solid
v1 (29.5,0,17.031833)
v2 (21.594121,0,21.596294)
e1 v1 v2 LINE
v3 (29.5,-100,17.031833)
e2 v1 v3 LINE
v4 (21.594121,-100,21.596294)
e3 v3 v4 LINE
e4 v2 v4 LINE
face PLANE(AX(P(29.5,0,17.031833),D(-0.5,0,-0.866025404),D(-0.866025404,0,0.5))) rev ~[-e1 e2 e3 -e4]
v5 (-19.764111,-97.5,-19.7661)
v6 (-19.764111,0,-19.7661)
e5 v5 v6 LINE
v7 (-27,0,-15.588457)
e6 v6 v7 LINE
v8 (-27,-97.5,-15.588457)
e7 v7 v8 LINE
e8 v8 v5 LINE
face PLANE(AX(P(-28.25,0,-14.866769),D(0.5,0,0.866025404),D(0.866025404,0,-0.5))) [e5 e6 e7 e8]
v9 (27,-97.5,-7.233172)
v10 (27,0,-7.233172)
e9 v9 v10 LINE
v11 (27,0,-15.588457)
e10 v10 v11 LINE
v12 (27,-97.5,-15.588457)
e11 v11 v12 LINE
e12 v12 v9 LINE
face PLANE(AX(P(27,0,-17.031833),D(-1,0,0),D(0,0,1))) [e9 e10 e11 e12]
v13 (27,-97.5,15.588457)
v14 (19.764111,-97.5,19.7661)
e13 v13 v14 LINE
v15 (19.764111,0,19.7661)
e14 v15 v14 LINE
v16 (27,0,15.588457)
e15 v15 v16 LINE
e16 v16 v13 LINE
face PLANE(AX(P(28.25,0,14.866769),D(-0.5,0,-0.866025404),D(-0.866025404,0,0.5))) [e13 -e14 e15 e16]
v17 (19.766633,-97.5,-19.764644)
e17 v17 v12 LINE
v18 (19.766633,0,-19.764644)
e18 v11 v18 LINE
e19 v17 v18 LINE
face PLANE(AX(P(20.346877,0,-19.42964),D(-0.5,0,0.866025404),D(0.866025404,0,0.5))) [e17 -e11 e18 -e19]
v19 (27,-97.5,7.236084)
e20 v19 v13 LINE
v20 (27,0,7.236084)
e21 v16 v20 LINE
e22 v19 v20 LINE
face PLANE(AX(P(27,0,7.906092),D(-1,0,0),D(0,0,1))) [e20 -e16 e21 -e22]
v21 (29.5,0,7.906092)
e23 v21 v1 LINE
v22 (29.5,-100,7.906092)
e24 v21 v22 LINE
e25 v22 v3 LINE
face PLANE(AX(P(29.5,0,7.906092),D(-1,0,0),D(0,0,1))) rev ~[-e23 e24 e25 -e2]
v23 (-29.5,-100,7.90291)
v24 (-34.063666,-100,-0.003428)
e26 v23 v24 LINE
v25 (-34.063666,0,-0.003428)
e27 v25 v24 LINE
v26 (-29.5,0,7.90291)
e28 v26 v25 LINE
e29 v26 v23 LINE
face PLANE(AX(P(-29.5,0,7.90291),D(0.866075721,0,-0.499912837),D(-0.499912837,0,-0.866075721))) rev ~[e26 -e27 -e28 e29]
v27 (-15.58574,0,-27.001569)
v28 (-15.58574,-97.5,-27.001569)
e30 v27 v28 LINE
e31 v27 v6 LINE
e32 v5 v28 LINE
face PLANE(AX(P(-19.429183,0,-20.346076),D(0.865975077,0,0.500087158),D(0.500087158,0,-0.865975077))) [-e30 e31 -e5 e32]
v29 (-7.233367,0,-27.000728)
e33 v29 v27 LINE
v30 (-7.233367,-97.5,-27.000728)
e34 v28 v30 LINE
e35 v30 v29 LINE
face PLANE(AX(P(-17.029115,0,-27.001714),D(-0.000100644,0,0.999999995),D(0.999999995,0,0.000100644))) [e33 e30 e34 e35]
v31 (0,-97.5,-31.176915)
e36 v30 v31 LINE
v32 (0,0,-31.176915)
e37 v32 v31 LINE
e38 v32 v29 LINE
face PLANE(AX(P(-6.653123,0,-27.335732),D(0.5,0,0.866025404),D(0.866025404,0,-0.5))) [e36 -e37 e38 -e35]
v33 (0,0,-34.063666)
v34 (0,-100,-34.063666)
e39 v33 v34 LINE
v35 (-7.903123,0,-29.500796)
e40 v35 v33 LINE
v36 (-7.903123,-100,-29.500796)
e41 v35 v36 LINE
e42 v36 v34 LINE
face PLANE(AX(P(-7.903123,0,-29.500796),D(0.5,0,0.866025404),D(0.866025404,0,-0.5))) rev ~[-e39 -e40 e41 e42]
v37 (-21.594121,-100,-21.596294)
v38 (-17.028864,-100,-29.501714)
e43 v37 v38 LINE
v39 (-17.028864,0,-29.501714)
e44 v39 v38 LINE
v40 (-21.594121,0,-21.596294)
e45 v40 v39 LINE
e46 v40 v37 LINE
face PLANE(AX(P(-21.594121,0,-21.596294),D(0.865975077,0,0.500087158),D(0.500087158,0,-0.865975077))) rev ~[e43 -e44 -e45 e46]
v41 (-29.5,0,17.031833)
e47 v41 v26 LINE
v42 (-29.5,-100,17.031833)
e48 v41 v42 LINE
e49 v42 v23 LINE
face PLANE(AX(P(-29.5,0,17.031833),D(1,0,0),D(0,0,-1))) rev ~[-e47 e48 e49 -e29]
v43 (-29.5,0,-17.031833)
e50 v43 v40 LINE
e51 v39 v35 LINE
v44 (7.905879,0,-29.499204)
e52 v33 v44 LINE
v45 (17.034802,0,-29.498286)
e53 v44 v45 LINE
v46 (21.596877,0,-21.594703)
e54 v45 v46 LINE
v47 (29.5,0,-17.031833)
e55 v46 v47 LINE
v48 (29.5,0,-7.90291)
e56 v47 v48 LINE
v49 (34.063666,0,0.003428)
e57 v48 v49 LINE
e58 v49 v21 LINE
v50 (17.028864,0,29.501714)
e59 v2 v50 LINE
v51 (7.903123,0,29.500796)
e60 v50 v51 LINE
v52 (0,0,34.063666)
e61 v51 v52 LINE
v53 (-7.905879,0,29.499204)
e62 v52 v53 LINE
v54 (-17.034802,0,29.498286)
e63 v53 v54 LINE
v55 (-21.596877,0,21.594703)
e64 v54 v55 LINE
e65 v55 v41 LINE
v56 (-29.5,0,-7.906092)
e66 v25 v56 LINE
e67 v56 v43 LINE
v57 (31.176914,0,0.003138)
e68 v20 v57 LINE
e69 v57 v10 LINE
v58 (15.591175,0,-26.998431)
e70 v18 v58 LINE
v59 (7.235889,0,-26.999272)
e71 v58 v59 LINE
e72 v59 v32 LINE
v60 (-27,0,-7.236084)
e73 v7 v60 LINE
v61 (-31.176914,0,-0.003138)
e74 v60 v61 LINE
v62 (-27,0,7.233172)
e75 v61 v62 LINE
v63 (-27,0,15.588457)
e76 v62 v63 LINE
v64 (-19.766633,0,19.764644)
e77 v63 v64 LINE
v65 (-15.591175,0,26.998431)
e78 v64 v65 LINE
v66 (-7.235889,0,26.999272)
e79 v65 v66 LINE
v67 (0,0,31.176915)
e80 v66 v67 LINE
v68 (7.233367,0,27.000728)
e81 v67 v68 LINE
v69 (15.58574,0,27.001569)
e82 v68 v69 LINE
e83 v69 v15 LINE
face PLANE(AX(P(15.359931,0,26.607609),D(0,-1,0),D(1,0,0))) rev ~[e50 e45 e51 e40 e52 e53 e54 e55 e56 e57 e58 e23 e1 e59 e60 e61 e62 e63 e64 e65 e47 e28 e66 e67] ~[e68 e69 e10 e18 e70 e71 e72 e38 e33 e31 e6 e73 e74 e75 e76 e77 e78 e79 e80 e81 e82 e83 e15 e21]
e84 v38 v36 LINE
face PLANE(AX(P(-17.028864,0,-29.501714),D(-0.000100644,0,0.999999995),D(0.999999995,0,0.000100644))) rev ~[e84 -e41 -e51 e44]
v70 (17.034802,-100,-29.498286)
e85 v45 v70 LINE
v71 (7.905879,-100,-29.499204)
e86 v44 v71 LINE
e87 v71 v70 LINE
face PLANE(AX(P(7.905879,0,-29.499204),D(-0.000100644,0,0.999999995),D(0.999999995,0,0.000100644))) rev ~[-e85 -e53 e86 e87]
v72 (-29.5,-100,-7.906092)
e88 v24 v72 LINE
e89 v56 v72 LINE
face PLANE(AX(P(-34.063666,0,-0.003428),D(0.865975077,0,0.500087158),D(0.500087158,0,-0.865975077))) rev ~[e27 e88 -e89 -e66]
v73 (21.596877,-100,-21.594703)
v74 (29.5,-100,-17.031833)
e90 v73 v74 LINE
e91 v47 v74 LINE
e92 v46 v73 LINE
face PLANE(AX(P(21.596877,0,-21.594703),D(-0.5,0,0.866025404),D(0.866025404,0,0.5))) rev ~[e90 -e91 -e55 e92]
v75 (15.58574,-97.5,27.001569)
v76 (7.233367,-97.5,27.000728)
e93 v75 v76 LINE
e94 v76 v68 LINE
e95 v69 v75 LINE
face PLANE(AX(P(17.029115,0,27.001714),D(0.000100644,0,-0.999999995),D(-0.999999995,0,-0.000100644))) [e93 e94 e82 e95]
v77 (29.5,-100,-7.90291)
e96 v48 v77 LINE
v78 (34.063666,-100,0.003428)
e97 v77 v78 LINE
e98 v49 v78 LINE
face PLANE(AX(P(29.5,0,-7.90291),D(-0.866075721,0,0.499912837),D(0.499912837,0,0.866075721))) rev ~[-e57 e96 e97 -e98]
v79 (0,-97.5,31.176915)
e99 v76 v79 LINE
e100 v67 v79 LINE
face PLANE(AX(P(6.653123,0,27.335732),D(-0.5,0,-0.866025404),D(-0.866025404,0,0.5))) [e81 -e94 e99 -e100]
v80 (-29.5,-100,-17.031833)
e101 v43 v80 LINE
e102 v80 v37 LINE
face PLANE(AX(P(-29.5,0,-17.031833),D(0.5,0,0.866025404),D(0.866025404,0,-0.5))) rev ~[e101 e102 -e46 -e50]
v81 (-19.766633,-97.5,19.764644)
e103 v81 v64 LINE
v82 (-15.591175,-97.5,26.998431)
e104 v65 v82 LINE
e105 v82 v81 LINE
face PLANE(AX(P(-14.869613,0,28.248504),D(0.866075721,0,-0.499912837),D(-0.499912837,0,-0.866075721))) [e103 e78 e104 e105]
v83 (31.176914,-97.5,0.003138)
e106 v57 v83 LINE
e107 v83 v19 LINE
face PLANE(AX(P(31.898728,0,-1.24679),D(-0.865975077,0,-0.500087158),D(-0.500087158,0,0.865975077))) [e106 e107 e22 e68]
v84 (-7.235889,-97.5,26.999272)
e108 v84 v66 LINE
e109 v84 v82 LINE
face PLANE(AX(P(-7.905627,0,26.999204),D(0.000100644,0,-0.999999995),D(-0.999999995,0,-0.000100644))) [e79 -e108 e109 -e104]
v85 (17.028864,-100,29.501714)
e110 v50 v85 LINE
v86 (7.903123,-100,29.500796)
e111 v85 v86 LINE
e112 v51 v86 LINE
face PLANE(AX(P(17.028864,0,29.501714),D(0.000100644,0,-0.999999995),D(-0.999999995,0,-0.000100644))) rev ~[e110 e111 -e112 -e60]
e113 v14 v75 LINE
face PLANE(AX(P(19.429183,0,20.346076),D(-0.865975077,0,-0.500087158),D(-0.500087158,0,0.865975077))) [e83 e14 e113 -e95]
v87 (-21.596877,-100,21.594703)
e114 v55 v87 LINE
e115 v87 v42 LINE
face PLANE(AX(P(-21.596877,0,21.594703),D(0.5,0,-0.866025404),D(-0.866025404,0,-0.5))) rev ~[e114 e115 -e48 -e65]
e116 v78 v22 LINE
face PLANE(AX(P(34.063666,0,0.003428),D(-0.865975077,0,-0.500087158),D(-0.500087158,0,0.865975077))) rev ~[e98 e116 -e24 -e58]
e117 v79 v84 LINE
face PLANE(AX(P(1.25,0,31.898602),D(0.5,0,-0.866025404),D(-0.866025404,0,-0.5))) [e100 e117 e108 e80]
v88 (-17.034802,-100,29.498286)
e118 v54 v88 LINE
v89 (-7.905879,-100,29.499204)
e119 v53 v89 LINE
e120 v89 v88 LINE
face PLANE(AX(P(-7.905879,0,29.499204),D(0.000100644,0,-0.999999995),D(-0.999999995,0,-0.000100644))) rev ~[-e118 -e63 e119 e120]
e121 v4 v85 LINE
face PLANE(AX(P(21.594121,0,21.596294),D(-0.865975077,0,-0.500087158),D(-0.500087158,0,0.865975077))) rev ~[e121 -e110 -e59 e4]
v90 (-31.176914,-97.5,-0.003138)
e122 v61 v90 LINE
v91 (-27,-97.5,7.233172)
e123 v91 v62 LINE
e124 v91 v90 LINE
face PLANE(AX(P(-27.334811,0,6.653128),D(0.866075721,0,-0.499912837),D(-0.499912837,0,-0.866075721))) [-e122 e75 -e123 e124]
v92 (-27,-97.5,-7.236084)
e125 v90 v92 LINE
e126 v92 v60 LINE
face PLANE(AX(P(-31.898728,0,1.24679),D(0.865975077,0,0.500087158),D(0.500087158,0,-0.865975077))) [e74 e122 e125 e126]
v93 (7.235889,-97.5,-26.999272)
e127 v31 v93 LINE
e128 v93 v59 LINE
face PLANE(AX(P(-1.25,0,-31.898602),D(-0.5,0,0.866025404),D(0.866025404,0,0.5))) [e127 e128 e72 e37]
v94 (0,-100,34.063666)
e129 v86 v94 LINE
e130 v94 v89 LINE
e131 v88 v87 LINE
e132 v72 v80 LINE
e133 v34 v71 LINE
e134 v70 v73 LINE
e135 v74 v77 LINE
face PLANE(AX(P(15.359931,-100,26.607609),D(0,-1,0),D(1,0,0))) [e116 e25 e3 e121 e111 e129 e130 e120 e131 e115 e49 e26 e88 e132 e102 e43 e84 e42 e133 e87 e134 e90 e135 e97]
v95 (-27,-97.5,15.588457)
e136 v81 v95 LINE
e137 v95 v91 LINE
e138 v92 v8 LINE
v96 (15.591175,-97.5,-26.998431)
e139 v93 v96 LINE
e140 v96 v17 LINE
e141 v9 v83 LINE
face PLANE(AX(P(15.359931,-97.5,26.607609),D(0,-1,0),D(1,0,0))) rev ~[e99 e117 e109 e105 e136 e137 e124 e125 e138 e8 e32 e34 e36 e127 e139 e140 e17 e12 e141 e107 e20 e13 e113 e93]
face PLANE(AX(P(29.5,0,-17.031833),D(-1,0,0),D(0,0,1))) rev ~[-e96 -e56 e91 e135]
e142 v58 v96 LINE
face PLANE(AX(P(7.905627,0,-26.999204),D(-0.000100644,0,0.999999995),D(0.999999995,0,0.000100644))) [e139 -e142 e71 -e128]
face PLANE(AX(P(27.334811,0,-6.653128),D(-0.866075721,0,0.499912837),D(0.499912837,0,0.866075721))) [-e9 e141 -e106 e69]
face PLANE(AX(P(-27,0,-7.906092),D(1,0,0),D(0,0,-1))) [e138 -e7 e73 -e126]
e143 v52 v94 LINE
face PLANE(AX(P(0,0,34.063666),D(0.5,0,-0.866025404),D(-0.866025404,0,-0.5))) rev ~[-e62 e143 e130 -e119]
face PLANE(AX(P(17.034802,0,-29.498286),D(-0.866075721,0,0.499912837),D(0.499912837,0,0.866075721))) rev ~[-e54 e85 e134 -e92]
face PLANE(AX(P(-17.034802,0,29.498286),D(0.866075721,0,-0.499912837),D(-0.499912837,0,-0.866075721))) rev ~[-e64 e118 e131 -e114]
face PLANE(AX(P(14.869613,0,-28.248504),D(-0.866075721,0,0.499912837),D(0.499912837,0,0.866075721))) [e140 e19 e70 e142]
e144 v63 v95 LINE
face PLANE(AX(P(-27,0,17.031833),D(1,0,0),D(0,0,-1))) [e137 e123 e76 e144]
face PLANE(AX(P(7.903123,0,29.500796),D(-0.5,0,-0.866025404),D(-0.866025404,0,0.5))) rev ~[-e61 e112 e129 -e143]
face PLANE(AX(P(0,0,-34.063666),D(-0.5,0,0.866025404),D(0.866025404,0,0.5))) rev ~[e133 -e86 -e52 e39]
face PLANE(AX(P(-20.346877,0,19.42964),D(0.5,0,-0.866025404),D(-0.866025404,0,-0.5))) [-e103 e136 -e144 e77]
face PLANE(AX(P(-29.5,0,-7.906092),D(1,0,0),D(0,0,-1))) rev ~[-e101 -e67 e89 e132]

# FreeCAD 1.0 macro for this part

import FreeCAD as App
import Part
import Sketcher
from FreeCAD import Vector
Q = App.Units.Quantity


def faces_at(feature, points):
    """Names of the faces that lie closest to the given points."""
    faces = feature.Shape.Faces
    near = lambda p: min(range(len(faces)), key=lambda i: faces[i].distToShape(Part.Vertex(*p))[0])
    return sorted({f"Face{near(p) + 1}" for p in points})

doc = App.newDocument("Part")
body = doc.addObject("PartDesign::Body", "Body")

sketch1 = body.newObject("Sketcher::SketchObject", "Sketch")
sketch1.AttachmentSupport = (doc.getObject("XZ_Plane"), [""])
sketch1.MapMode = "FlatFace"
sketch1.addGeometry([
    Part.LineSegment(Vector(22, 22, 0), Vector(17, 30, 0)),
    Part.LineSegment(Vector(17, 30, 0), Vector(8, 30, 0)),
    Part.LineSegment(Vector(8, 30, 0), Vector(0, 34, 0)),
    Part.LineSegment(Vector(0, 34, 0), Vector(-8, 29, 0)),
    Part.LineSegment(Vector(-8, 29, 0), Vector(-17, 29, 0)),
    Part.LineSegment(Vector(-17, 29, 0), Vector(-22, 22, 0)),
    Part.LineSegment(Vector(-22, 22, 0), Vector(-30, 17, 0)),
    Part.LineSegment(Vector(-30, 17, 0), Vector(-30, 8, 0)),
    Part.LineSegment(Vector(-30, 8, 0), Vector(-34, 0, 0)),
    Part.LineSegment(Vector(-34, 0, 0), Vector(-30, -8, 0)),
    Part.LineSegment(Vector(-30, -8, 0), Vector(-30, -17, 0)),
    Part.LineSegment(Vector(-30, -17, 0), Vector(-22, -22, 0)),
    Part.LineSegment(Vector(-22, -22, 0), Vector(-17, -30, 0)),
    Part.LineSegment(Vector(-17, -30, 0), Vector(-8, -30, 0)),
    Part.LineSegment(Vector(-8, -30, 0), Vector(0, -34, 0)),
    Part.LineSegment(Vector(0, -34, 0), Vector(8, -29, 0)),
    Part.LineSegment(Vector(8, -29, 0), Vector(17, -29, 0)),
    Part.LineSegment(Vector(17, -29, 0), Vector(22, -22, 0)),
    Part.LineSegment(Vector(22, -22, 0), Vector(30, -17, 0)),
    Part.LineSegment(Vector(30, -17, 0), Vector(30, -8, 0)),
    Part.LineSegment(Vector(30, -8, 0), Vector(34, 0, 0)),
    Part.LineSegment(Vector(34, 0, 0), Vector(30, 8, 0)),
    Part.LineSegment(Vector(30, 8, 0), Vector(30, 17, 0)),
    Part.LineSegment(Vector(30, 17, 0), Vector(22, 22, 0)),
], False)
sketch1.addConstraint([
    Sketcher.Constraint("Coincident", 0, 2, 1, 1),
    Sketcher.Constraint("Coincident", 1, 2, 2, 1),
    Sketcher.Constraint("Coincident", 2, 2, 3, 1),
    Sketcher.Constraint("Coincident", 3, 2, 4, 1),
    Sketcher.Constraint("Coincident", 4, 2, 5, 1),
    Sketcher.Constraint("Coincident", 5, 2, 6, 1),
    Sketcher.Constraint("Coincident", 6, 2, 7, 1),
    Sketcher.Constraint("Coincident", 7, 2, 8, 1),
    Sketcher.Constraint("Coincident", 8, 2, 9, 1),
    Sketcher.Constraint("Coincident", 9, 2, 10, 1),
    Sketcher.Constraint("Coincident", 10, 2, 11, 1),
    Sketcher.Constraint("Coincident", 11, 2, 12, 1),
    Sketcher.Constraint("Coincident", 12, 2, 13, 1),
    Sketcher.Constraint("Coincident", 13, 2, 14, 1),
    Sketcher.Constraint("Coincident", 14, 2, 15, 1),
    Sketcher.Constraint("Coincident", 15, 2, 16, 1),
    Sketcher.Constraint("Coincident", 16, 2, 17, 1),
    Sketcher.Constraint("Coincident", 17, 2, 18, 1),
    Sketcher.Constraint("Coincident", 18, 2, 19, 1),
    Sketcher.Constraint("Coincident", 19, 2, 20, 1),
    Sketcher.Constraint("Coincident", 20, 2, 21, 1),
    Sketcher.Constraint("Coincident", 21, 2, 22, 1),
    Sketcher.Constraint("Coincident", 22, 2, 23, 1),
    Sketcher.Constraint("Coincident", 23, 2, 0, 1),
    Sketcher.Constraint("Vertical", 7),
    Sketcher.Constraint("Vertical", 10),
    Sketcher.Constraint("Vertical", 19),
    Sketcher.Constraint("Vertical", 22),
    Sketcher.Constraint("Symmetric", 0, 2, 12, 2, -1, 1),
    Sketcher.Constraint("Symmetric", 1, 2, 13, 2, -1, 1),
    Sketcher.Constraint("Symmetric", 2, 2, 14, 2, -1, 1),
    Sketcher.Constraint("Symmetric", 3, 2, 15, 2, -1, 1),
    Sketcher.Constraint("Symmetric", 4, 2, 16, 2, -1, 1),
    Sketcher.Constraint("Symmetric", 5, 2, 17, 2, -1, 1),
    Sketcher.Constraint("Symmetric", 6, 2, 18, 2, -1, 1),
    Sketcher.Constraint("Symmetric", 8, 2, 20, 2, -1, 1),
    Sketcher.Constraint("Symmetric", 9, 2, 21, 2, -1, 1),
    Sketcher.Constraint("Symmetric", 11, 2, 23, 2, -1, 1),
    Sketcher.Constraint("Symmetric", 10, 2, 18, 2, -2),
    Sketcher.Constraint("PointOnObject", 2, 2, -2),
    Sketcher.Constraint("Parallel", 1, 4),
    Sketcher.Constraint("Parallel", 3, 6),
    Sketcher.Constraint("Parallel", 5, 8),
    Sketcher.Constraint("Parallel", 0, 9),
    Sketcher.Constraint("Parallel", 2, 11),
    Sketcher.Constraint("Parallel", 17, 20),
    Sketcher.Constraint("Parallel", 14, 23),
    Sketcher.Constraint("Equal", 1, 2),
    Sketcher.Constraint("Equal", 0, 3),
    Sketcher.Constraint("Equal", 3, 4),
    Sketcher.Constraint("Equal", 2, 5),
    Sketcher.Constraint("Equal", 5, 6),
    Sketcher.Constraint("Equal", 4, 8),
    Sketcher.Constraint("Equal", 6, 9),
    Sketcher.Constraint("Equal", 8, 11),
    Sketcher.Constraint("Angle", 2, Q("150 deg")),
    Sketcher.Constraint("DistanceX", 6, 2, -1, 1, Q("29.5 mm")),
    Sketcher.Constraint("DistanceY", 10, 2, 10, 1, Q("9.125741 mm")),
    Sketcher.Constraint("DistanceX", 4, 2, -1, 1, Q("17.034802 mm")),
    Sketcher.Constraint("DistanceY", 5, 2, 3, 2, Q("7.904501 mm")),
    Sketcher.Constraint("DistanceY", 7, 2, 7, 1, Q("9.128923 mm")),
])
pad1 = body.newObject("PartDesign::Pad", "Pad")
pad1.Profile = sketch1
pad1.Length = 100
doc.recompute()

thickness = body.newObject("PartDesign::Thickness", "Thickness")
thickness.Base = (pad1, faces_at(pad1, [(0, 0, 0)]))
thickness.Value = 2.5
thickness.Reversed = True
thickness.Join = "Intersection"

doc.recompute()
